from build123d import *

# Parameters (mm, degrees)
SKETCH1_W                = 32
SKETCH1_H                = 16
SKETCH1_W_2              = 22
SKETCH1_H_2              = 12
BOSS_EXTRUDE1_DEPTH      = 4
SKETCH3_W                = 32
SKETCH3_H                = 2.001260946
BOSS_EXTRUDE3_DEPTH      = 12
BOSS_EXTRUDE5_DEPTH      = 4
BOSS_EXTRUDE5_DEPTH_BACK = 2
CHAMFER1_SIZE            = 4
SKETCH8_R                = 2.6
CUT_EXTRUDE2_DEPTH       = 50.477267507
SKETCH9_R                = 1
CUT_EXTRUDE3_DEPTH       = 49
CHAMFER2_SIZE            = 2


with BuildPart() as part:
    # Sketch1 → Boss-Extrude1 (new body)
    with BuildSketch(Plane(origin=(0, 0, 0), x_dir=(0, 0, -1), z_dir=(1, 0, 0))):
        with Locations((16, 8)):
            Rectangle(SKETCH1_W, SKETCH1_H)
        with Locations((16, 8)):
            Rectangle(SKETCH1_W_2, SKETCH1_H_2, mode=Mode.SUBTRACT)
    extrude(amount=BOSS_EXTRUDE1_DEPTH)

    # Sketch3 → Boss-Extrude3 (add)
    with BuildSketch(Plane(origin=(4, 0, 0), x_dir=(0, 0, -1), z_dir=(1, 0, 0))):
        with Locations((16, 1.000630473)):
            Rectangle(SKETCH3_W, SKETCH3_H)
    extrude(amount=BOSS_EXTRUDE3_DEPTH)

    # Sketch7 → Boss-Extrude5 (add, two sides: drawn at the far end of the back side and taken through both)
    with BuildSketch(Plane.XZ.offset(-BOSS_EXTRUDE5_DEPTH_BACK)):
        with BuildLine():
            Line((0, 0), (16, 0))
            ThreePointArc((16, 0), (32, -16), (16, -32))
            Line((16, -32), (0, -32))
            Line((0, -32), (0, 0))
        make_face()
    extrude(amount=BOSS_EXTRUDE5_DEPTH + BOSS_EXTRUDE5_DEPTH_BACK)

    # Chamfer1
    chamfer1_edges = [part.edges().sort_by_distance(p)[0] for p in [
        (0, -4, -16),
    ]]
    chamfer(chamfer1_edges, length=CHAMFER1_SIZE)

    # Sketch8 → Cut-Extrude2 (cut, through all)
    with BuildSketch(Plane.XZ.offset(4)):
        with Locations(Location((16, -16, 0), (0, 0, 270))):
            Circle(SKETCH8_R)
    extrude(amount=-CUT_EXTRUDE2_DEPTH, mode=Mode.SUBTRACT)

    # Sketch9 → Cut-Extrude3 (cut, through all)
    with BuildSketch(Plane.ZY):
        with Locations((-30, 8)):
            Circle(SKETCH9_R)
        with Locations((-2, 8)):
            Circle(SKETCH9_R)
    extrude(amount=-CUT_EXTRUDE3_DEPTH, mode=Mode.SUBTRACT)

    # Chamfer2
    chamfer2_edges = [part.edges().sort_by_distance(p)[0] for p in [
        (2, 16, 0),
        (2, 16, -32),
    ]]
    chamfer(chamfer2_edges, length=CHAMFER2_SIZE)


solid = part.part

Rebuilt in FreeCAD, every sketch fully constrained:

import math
import FreeCAD as App
import Part
import Sketcher
from FreeCAD import Vector
Q = App.Units.Quantity


def edges_at(feature, points):
    """Names of the edges that pass closest to the given points."""
    edges = feature.Shape.Edges
    near = lambda p: min(range(len(edges)), key=lambda i: edges[i].distToShape(Part.Vertex(*p))[0])
    return sorted({f"Edge{near(p) + 1}" for p in points})

doc = App.newDocument("Part")
body = doc.addObject("PartDesign::Body", "Body")

# Sketch on YZ plane
sketch1 = doc.addObject("Sketcher::SketchObject", "Sketch")
body.addObject(sketch1)
sketch1.AttachmentSupport = (doc.YZ_Plane, [""])
sketch1.MapMode = "FlatFace"
sketch1.addGeometry([
    Part.LineSegment(Vector(16, 0, 0), Vector(0, 0, 0)),  # 0
    Part.LineSegment(Vector(0, 0, 0), Vector(0, -32, 0)),  # 1
    Part.LineSegment(Vector(0, -32, 0), Vector(16, -32, 0)),  # 2
    Part.LineSegment(Vector(16, -32, 0), Vector(16, 0, 0)),  # 3
    Part.LineSegment(Vector(2, -27, 0), Vector(2, -5, 0)),  # 4
    Part.LineSegment(Vector(2, -5, 0), Vector(14, -5, 0)),  # 5
    Part.LineSegment(Vector(14, -5, 0), Vector(14, -27, 0)),  # 6
    Part.LineSegment(Vector(14, -27, 0), Vector(2, -27, 0)),  # 7
], False)
sketch1.addConstraint([
    Sketcher.Constraint("Coincident", 0, 2, 1, 1),
    Sketcher.Constraint("Coincident", 1, 2, 2, 1),
    Sketcher.Constraint("Coincident", 2, 2, 3, 1),
    Sketcher.Constraint("Coincident", 3, 2, 0, 1),
    Sketcher.Constraint("Coincident", 4, 2, 5, 1),
    Sketcher.Constraint("Coincident", 5, 2, 6, 1),
    Sketcher.Constraint("Coincident", 6, 2, 7, 1),
    Sketcher.Constraint("Coincident", 7, 2, 4, 1),
    Sketcher.Constraint("Horizontal", 0),
    Sketcher.Constraint("Vertical", 1),
    Sketcher.Constraint("Horizontal", 2),
    Sketcher.Constraint("Vertical", 3),
    Sketcher.Constraint("Vertical", 4),
    Sketcher.Constraint("Horizontal", 5),
    Sketcher.Constraint("Vertical", 6),
    Sketcher.Constraint("Horizontal", 7),
    Sketcher.Constraint("Coincident", 0, 2, -1, 1),
    Sketcher.Constraint("DistanceX", 0, 2, 0, 1, Q("16 mm")),
    Sketcher.Constraint("DistanceX", 5, 1, 5, 2, Q("12 mm")),
    Sketcher.Constraint("DistanceY", 1, 2, 1, 1, Q("32 mm")),
    Sketcher.Constraint("DistanceY", 4, 1, 4, 2, Q("22 mm")),
    Sketcher.Constraint("DistanceX", -1, 1, 4, 2, Q("2 mm")),
    Sketcher.Constraint("DistanceY", 4, 2, -1, 1, Q("5 mm")),
])
pad1 = doc.addObject("PartDesign::Pad", "Pad")
body.addObject(pad1)
pad1.Profile = sketch1
pad1.Length = 4

# Sketch on YZ plane
sketch2 = doc.addObject("Sketcher::SketchObject", "Sketch001")
body.addObject(sketch2)
sketch2.AttachmentSupport = (doc.YZ_Plane, [""])
sketch2.MapMode = "FlatFace"
sketch2.AttachmentOffset = App.Placement(Vector(0, 0, 4), App.Rotation())
sketch2.addGeometry([
    Part.LineSegment(Vector(2, 0, 0), Vector(0, 0, 0)),
    Part.LineSegment(Vector(0, 0, 0), Vector(0, -32, 0)),
    Part.LineSegment(Vector(0, -32, 0), Vector(2, -32, 0)),
    Part.LineSegment(Vector(2, -32, 0), Vector(2, 0, 0)),
], False)
sketch2.addConstraint([
    Sketcher.Constraint("Coincident", 0, 2, 1, 1),
    Sketcher.Constraint("Coincident", 1, 2, 2, 1),
    Sketcher.Constraint("Coincident", 2, 2, 3, 1),
    Sketcher.Constraint("Coincident", 3, 2, 0, 1),
    Sketcher.Constraint("Horizontal", 0),
    Sketcher.Constraint("Vertical", 1),
    Sketcher.Constraint("Horizontal", 2),
    Sketcher.Constraint("Vertical", 3),
    Sketcher.Constraint("Coincident", 0, 2, -1, 1),
    Sketcher.Constraint("DistanceY", 1, 2, 1, 1, Q("32 mm")),
    Sketcher.Constraint("DistanceX", 0, 2, 0, 1, Q("2.001261 mm")),
])
pad2 = doc.addObject("PartDesign::Pad", "Pad001")
body.addObject(pad2)
pad2.Profile = sketch2
pad2.Length = 12

# Sketch on XZ plane
sketch3 = doc.addObject("Sketcher::SketchObject", "Sketch002")
body.addObject(sketch3)
sketch3.AttachmentSupport = (doc.XZ_Plane, [""])
sketch3.MapMode = "FlatFace"
sketch3.addGeometry([
    Part.LineSegment(Vector(16, 0, 0), Vector(0, 0, 0)),
    Part.LineSegment(Vector(0, 0, 0), Vector(0, -32, 0)),
    Part.LineSegment(Vector(0, -32, 0), Vector(16, -32, 0)),
    Part.ArcOfCircle(Part.Circle(Vector(16, -16, 0), Vector(0, 0, 1), 16), math.radians(-90), math.radians(90)),
], False)
sketch3.addConstraint([
    Sketcher.Constraint("Coincident", 0, 2, 1, 1),
    Sketcher.Constraint("Coincident", 1, 2, 2, 1),
    Sketcher.Constraint("Tangent", 2, 2, 3, 1),
    Sketcher.Constraint("Tangent", 3, 2, 0, 1),
    Sketcher.Constraint("Horizontal", 0),
    Sketcher.Constraint("Vertical", 1),
    Sketcher.Constraint("Horizontal", 2),
    Sketcher.Constraint("Coincident", 0, 2, -1, 1),
    Sketcher.Constraint("Radius", 3, Q("16 mm")),
    Sketcher.Constraint("DistanceX", 0, 2, 0, 1, Q("16 mm")),
])
pad3 = doc.addObject("PartDesign::Pad", "Pad002")
body.addObject(pad3)
pad3.Profile = sketch3
pad3.Type = "TwoLengths"
pad3.Length = 4
pad3.Length2 = 2
doc.recompute()

chamfer = doc.addObject("PartDesign::Chamfer", "Chamfer")
body.addObject(chamfer)
chamfer.Base = (pad3, edges_at(pad3, [(0, -4, -16)]))
chamfer.Size = 4

# Sketch on XZ plane
sketch4 = doc.addObject("Sketcher::SketchObject", "Sketch003")
body.addObject(sketch4)
sketch4.AttachmentSupport = (doc.XZ_Plane, [""])
sketch4.MapMode = "FlatFace"
sketch4.AttachmentOffset = App.Placement(Vector(0, 0, 4), App.Rotation())
sketch4.addGeometry(Part.Circle(Vector(16, -16, 0), Vector(0, 0, 1), 2.6), False)
sketch4.addConstraint([
    Sketcher.Constraint("Diameter", 0, Q("5.2 mm")),
    Sketcher.Constraint("DistanceX", -1, 1, 0, 3, Q("16 mm")),
    Sketcher.Constraint("DistanceY", 0, 3, -1, 1, Q("16 mm")),
])
pocket1 = doc.addObject("PartDesign::Pocket", "Pocket")
body.addObject(pocket1)
pocket1.Profile = sketch4
pocket1.Type = "ThroughAll"

# Sketch on YZ plane
sketch5 = doc.addObject("Sketcher::SketchObject", "Sketch004")
body.addObject(sketch5)
sketch5.AttachmentSupport = (doc.YZ_Plane, [""])
sketch5.MapMode = "FlatFace"
sketch5.addGeometry([
    Part.Circle(Vector(8, -30, 0), Vector(0, 0, 1), 1),
    Part.Circle(Vector(8, -2, 0), Vector(0, 0, 1), 1),
], False)
sketch5.addConstraint([
    Sketcher.Constraint("Equal", 0, 1),
    Sketcher.Constraint("Vertical", 0, 3, 1, 3),
    Sketcher.Constraint("Diameter", 0, Q("2 mm")),
    Sketcher.Constraint("DistanceX", -1, 1, 0, 3, Q("8 mm")),
    Sketcher.Constraint("DistanceY", 0, 3, -1, 1, Q("30 mm")),
    Sketcher.Constraint("DistanceY", 1, 3, -1, 1, Q("2 mm")),
])
pocket2 = doc.addObject("PartDesign::Pocket", "Pocket001")
body.addObject(pocket2)
pocket2.Profile = sketch5
pocket2.Type = "ThroughAll"
pocket2.Reversed = True
doc.recompute()

chamfer2 = doc.addObject("PartDesign::Chamfer", "Chamfer001")
body.addObject(chamfer2)
chamfer2.Base = (pocket2, edges_at(pocket2, [(2, 16, 0), (2, 16, -32)]))
chamfer2.Size = 2

doc.recompute()
